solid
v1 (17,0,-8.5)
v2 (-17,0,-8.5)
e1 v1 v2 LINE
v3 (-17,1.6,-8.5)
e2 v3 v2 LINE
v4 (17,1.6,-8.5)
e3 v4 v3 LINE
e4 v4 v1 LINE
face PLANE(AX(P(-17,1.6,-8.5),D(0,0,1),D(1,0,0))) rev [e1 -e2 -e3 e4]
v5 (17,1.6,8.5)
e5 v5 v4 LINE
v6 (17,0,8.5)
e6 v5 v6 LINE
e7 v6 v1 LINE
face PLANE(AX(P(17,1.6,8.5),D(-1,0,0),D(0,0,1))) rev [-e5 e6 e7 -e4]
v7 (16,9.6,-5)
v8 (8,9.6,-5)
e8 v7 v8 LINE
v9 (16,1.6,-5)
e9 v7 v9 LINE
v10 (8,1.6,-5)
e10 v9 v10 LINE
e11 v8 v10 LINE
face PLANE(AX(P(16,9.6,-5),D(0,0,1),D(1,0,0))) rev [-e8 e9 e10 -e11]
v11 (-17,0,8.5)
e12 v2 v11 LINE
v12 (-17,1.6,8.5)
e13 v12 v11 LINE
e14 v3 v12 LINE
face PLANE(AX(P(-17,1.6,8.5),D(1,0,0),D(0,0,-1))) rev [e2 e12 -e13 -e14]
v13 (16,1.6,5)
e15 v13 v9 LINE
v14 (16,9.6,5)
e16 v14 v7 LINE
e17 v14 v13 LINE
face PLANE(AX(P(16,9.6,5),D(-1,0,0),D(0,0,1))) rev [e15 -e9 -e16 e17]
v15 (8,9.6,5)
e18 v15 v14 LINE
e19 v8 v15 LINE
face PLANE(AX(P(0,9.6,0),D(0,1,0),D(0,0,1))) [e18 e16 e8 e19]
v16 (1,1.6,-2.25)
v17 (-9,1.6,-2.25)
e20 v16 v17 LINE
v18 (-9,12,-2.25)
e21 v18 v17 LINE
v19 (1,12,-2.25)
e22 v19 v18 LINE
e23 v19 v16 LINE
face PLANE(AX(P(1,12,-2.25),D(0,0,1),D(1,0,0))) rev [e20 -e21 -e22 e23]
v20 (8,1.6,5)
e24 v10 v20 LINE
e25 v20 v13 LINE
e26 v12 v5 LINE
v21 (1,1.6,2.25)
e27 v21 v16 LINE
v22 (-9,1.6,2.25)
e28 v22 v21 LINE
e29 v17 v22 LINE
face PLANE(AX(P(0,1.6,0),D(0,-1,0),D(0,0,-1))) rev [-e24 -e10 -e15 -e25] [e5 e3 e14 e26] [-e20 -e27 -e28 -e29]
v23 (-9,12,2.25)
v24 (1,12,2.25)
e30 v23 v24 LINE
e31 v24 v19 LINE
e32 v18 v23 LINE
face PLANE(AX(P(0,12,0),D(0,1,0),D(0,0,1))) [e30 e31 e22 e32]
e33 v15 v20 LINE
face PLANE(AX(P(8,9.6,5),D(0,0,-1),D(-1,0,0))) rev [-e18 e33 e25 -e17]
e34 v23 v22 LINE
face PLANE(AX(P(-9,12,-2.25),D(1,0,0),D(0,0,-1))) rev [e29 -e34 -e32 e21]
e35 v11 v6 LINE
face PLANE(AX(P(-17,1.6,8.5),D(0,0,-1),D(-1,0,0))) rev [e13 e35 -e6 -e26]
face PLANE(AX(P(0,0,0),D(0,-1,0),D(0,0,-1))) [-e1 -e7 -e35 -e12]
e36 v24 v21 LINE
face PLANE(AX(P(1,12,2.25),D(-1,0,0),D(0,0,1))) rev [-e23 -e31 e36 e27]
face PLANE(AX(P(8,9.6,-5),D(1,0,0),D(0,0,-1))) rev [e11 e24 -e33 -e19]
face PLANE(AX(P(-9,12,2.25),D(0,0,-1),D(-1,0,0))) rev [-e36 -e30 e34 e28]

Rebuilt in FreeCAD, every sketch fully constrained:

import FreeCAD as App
import Part
import Sketcher
from FreeCAD import Vector


def add_polygon(sketch, points):
    """Adds a closed chain of lines whose ends are joined by coincident constraints."""
    first, n = sketch.GeometryCount, len(points)
    for a, b in zip(points, points[1:] + points[:1]):
        sketch.addGeometry(Part.LineSegment(App.Vector(*a, 0), App.Vector(*b, 0)), False)
    for i in range(n):
        sketch.addConstraint(Sketcher.Constraint("Coincident", first + i, 2, first + (i + 1) % n, 1))

doc = App.newDocument("Part")
body = doc.addObject("PartDesign::Body", "Body")

# Sketch on XZ plane
sketch1 = doc.addObject("Sketcher::SketchObject", "Sketch")
body.addObject(sketch1)
sketch1.AttachmentSupport = (doc.XZ_Plane, [""])
sketch1.MapMode = "FlatFace"
add_polygon(sketch1, [(-17, -8), (-17, 8), (17, 8), (17, -8)])  # lines 0-3
sketch1.addConstraint(Sketcher.Constraint("Vertical", 0))
sketch1.addConstraint(Sketcher.Constraint("Horizontal", 1))
sketch1.addConstraint(Sketcher.Constraint("Vertical", 2))
sketch1.addConstraint(Sketcher.Constraint("Horizontal", 3))
sketch1.addConstraint(Sketcher.Constraint("Symmetric", 0, 2, 2, 2, -1, 1))
sketch1.addConstraint(Sketcher.Constraint("DistanceX", 1, 1, 1, 2, 34.0))
sketch1.addConstraint(Sketcher.Constraint("DistanceY", 0, 1, 0, 2, 17.0))
pad1 = doc.addObject("PartDesign::Pad", "Pad")
body.addObject(pad1)
pad1.Profile = sketch1
pad1.Length = 1.6
pad1.Reversed = True

# Sketch on XZ plane
sketch2 = doc.addObject("Sketcher::SketchObject", "Sketch001")
body.addObject(sketch2)
sketch2.AttachmentSupport = (doc.XZ_Plane, [""])
sketch2.MapMode = "FlatFace"
sketch2.AttachmentOffset = App.Placement(Vector(0, 0, -1.6), App.Rotation())
add_polygon(sketch2, [(-9, -2.2), (-9, 2.2), (1, 2.2), (1, -2.2)])  # lines 0-3
sketch2.addConstraint(Sketcher.Constraint("Vertical", 0))
sketch2.addConstraint(Sketcher.Constraint("Horizontal", 1))
sketch2.addConstraint(Sketcher.Constraint("Vertical", 2))
sketch2.addConstraint(Sketcher.Constraint("Horizontal", 3))
sketch2.addConstraint(Sketcher.Constraint("DistanceX", 1, 1, 1, 2, 10.0))
sketch2.addConstraint(Sketcher.Constraint("DistanceY", 0, 1, 0, 2, 4.5))
sketch2.addConstraint(Sketcher.Constraint("DistanceX", 0, 2, -1, 1, 9.0))
sketch2.addConstraint(Sketcher.Constraint("DistanceY", -1, 1, 0, 2, 2.25))
pad2 = doc.addObject("PartDesign::Pad", "Pad001")
body.addObject(pad2)
pad2.Profile = sketch2
pad2.Length = 10.4
pad2.Reversed = True

# Sketch on XZ plane
sketch3 = doc.addObject("Sketcher::SketchObject", "Sketch002")
body.addObject(sketch3)
sketch3.AttachmentSupport = (doc.XZ_Plane, [""])
sketch3.MapMode = "FlatFace"
sketch3.AttachmentOffset = App.Placement(Vector(0, 0, -1.6), App.Rotation())
add_polygon(sketch3, [(8, -5), (8, 5), (16, 5), (16, -5)])  # lines 0-3
sketch3.addConstraint(Sketcher.Constraint("Vertical", 0))
sketch3.addConstraint(Sketcher.Constraint("Horizontal", 1))
sketch3.addConstraint(Sketcher.Constraint("Vertical", 2))
sketch3.addConstraint(Sketcher.Constraint("Horizontal", 3))
sketch3.addConstraint(Sketcher.Constraint("DistanceX", 1, 1, 1, 2, 8.0))
sketch3.addConstraint(Sketcher.Constraint("DistanceY", 0, 1, 0, 2, 10.0))
sketch3.addConstraint(Sketcher.Constraint("DistanceX", -1, 1, 0, 2, 8.0))
sketch3.addConstraint(Sketcher.Constraint("DistanceY", -1, 1, 0, 2, 5.0))
pad3 = doc.addObject("PartDesign::Pad", "Pad002")
body.addObject(pad3)
pad3.Profile = sketch3
pad3.Length = 8
pad3.Reversed = True

doc.recompute()
